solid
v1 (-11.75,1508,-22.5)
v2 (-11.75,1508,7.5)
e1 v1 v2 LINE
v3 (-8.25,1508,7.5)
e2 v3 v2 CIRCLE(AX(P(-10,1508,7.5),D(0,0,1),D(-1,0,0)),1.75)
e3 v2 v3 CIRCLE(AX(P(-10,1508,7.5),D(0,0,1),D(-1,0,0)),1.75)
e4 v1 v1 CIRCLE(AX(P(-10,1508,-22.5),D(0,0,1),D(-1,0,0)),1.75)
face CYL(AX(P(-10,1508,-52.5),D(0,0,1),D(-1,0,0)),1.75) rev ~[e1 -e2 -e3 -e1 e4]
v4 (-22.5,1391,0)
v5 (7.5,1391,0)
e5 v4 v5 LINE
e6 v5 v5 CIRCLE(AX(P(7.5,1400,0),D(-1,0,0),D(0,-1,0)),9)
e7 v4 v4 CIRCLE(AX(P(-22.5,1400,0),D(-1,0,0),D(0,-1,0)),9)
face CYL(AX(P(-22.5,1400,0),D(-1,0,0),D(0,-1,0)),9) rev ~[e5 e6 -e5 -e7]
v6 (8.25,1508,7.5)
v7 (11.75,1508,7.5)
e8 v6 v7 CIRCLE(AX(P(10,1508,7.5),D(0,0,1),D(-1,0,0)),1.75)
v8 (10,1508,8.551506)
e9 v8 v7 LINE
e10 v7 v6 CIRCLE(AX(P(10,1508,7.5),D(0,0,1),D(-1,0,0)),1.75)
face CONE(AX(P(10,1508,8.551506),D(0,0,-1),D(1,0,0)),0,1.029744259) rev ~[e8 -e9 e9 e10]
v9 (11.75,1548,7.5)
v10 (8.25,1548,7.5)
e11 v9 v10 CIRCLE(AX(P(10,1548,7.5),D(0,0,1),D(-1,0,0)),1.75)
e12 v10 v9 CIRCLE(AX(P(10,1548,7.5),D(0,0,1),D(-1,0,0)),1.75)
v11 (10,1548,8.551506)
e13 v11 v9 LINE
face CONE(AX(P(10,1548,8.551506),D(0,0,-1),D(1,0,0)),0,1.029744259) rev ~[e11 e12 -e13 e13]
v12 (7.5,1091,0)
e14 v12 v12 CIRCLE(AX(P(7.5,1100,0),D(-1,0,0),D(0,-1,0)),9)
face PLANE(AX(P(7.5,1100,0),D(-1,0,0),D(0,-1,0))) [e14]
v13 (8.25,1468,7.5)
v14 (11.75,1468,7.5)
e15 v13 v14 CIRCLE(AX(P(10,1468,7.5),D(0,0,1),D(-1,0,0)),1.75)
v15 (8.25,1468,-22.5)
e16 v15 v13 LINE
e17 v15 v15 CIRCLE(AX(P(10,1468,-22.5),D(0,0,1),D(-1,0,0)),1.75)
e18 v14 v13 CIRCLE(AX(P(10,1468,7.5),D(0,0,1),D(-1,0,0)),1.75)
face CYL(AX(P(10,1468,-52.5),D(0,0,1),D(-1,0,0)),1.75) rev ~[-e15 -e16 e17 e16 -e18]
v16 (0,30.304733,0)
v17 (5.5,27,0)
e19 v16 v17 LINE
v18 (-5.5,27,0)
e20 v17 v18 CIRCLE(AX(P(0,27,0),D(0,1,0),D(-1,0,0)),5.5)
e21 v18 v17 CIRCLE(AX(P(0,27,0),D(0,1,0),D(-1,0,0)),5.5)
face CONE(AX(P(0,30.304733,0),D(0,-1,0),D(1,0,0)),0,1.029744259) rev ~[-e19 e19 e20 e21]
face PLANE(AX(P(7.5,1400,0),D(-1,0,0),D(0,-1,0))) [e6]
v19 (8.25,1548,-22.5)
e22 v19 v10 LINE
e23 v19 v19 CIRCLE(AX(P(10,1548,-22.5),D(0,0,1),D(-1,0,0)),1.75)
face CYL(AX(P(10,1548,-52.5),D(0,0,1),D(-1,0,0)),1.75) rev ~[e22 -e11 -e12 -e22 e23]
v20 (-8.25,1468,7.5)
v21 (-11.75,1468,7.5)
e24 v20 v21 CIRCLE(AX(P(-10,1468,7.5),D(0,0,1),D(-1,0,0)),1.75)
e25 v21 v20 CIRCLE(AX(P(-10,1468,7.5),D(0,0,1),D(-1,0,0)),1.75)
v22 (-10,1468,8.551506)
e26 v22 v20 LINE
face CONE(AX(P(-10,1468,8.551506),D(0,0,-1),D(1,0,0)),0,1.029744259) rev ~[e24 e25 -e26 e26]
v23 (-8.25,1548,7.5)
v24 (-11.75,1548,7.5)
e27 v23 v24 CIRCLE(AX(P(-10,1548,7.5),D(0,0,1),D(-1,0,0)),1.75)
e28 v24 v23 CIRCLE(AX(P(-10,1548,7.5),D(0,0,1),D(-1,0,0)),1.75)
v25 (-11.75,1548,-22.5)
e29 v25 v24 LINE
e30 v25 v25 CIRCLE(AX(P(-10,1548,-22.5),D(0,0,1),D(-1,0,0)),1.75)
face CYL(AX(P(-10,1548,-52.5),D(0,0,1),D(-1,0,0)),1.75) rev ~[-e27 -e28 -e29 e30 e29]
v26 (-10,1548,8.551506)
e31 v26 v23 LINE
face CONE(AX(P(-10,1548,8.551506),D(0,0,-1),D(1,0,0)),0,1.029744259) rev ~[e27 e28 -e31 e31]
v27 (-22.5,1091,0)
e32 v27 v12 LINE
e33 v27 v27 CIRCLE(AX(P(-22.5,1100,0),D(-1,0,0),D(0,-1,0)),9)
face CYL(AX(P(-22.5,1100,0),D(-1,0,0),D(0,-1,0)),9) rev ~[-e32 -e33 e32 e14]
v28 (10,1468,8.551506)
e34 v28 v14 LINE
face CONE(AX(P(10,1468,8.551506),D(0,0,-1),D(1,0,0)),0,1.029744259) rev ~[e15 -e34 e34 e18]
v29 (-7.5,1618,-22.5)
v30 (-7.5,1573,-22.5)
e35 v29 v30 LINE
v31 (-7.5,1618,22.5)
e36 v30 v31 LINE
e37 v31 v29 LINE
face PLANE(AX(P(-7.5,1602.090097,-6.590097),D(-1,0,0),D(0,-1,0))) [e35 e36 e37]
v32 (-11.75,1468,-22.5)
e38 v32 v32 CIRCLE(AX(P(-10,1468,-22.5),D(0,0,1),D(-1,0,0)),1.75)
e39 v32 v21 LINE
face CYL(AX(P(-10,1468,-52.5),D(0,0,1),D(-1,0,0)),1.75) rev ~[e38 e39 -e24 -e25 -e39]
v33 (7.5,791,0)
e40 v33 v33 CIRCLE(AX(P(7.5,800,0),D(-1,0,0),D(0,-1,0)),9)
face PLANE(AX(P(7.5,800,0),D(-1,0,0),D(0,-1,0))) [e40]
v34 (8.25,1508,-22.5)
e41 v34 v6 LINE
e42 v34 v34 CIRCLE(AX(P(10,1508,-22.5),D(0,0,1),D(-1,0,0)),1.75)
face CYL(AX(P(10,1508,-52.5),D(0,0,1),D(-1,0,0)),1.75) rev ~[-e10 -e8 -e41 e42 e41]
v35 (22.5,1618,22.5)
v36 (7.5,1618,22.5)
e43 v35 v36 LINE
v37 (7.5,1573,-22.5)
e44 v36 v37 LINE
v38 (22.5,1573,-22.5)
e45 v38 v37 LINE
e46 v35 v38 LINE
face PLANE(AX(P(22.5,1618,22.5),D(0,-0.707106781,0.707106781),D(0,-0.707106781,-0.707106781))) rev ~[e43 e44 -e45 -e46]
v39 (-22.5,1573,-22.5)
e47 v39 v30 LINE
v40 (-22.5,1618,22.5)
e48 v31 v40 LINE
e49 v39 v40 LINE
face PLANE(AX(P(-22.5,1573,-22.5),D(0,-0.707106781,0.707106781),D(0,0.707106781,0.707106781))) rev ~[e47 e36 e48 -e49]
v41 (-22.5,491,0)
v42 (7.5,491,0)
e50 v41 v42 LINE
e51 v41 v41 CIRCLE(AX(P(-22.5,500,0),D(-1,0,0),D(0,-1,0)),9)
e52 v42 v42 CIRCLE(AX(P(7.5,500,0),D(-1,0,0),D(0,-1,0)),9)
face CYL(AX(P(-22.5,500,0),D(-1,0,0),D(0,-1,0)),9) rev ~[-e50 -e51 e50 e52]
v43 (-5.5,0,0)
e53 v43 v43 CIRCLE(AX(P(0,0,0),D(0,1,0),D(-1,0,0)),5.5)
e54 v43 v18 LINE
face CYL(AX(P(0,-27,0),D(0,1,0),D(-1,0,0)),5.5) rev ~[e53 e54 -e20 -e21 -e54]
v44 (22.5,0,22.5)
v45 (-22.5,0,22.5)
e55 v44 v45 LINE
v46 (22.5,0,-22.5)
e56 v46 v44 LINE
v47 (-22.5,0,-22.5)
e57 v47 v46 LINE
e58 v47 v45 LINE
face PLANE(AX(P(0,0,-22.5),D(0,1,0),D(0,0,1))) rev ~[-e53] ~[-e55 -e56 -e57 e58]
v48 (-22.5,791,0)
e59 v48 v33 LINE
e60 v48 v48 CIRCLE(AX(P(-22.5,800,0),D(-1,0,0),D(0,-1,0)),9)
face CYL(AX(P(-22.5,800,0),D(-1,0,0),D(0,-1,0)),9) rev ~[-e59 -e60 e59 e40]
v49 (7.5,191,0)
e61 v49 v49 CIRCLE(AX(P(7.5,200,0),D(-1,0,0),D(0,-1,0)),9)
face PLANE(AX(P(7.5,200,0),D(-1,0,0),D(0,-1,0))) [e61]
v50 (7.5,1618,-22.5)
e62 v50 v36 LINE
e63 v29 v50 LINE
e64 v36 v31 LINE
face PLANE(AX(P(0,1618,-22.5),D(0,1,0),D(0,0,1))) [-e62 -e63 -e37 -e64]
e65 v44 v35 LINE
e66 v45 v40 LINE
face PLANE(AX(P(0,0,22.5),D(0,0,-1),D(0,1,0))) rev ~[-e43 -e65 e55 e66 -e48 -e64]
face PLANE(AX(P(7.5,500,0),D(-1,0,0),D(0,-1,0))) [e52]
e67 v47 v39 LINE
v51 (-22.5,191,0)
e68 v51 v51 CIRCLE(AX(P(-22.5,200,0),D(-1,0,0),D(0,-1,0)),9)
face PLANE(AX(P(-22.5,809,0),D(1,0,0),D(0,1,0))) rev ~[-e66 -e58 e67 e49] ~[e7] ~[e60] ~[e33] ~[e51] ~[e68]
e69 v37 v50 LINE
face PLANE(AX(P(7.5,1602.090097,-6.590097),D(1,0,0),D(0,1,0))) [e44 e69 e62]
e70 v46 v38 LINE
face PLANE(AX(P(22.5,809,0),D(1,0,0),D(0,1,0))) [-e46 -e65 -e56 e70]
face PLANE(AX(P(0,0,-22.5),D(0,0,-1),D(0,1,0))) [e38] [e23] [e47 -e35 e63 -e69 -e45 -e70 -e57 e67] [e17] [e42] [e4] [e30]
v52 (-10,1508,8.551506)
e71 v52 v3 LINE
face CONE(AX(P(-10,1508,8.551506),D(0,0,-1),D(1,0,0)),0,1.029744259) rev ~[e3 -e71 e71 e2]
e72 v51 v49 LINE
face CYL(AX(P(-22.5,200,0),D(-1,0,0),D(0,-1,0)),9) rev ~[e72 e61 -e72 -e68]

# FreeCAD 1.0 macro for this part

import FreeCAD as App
import Part
import Sketcher
from FreeCAD import Vector
Q = App.Units.Quantity


def add_polygon(sketch, points):
    """Adds a closed chain of lines whose ends are joined by coincident constraints."""
    first, n = sketch.GeometryCount, len(points)
    for a, b in zip(points, points[1:] + points[:1]):
        sketch.addGeometry(Part.LineSegment(App.Vector(*a, 0), App.Vector(*b, 0)), False)
    for i in range(n):
        sketch.addConstraint(Sketcher.Constraint("Coincident", first + i, 2, first + (i + 1) % n, 1))

doc = App.newDocument("Part")
body = doc.addObject("PartDesign::Body", "Body")

sketch1 = body.newObject("Sketcher::SketchObject", "Sketch")
sketch1.AttachmentSupport = (doc.getObject("YZ_Plane"), [""])
sketch1.MapMode = "FlatFace"
add_polygon(sketch1, [(0, 22), (0, -22), (1618, -22), (1618, 22)])
sketch1.addConstraint(Sketcher.Constraint("Vertical", 0))
sketch1.addConstraint(Sketcher.Constraint("Horizontal", 1))
sketch1.addConstraint(Sketcher.Constraint("Vertical", 2))
sketch1.addConstraint(Sketcher.Constraint("Horizontal", 3))
sketch1.addConstraint(Sketcher.Constraint("Symmetric", 0, 2, 3, 2, -1, 1))
sketch1.addConstraint(Sketcher.Constraint("DistanceX", 1, 1, 1, 2, Q("1618 mm")))
sketch1.addConstraint(Sketcher.Constraint("DistanceY", 0, 2, 0, 1, Q("45 mm")))
pad1 = body.newObject("PartDesign::Pad", "Pad")
pad1.Profile = sketch1
pad1.Length = 45
pad1.Midplane = True

sketch2 = body.newObject("Sketcher::SketchObject", "Sketch001")
sketch2.AttachmentSupport = (doc.getObject("XZ_Plane"), [""])
sketch2.MapMode = "FlatFace"
sketch2.addGeometry(Part.Circle(Vector(0, 0, 0), Vector(0, 0, 1), 6), False)
sketch2.addConstraint(Sketcher.Constraint("Coincident", 0, 3, -1, 1))
sketch2.addConstraint(Sketcher.Constraint("Diameter", 0, Q("11 mm")))
doc.recompute()
hole = body.newObject("PartDesign::Hole", "Hole")
hole.Profile = sketch2
hole.ThreadType = "None"
hole.Diameter = 11
hole.DepthType = "Dimension"
hole.Depth = 27
hole.DrillPoint = "Angled"
hole.DrillPointAngle = 118

sketch3 = body.newObject("Sketcher::SketchObject", "Sketch002")
sketch3.AttachmentSupport = (doc.getObject("YZ_Plane"), [""])
sketch3.MapMode = "FlatFace"
sketch3.AttachmentOffset = App.Placement(Vector(0, 0, 22.5), App.Rotation())
add_polygon(sketch3, [(1618, -22), (1618, 22), (1573, -22)])
sketch3.addConstraint(Sketcher.Constraint("Vertical", 0))
sketch3.addConstraint(Sketcher.Constraint("Horizontal", 2))
sketch3.addConstraint(Sketcher.Constraint("Equal", 2, 0))
sketch3.addConstraint(Sketcher.Constraint("DistanceX", 2, 1, 2, 2, Q("45 mm")))
sketch3.addConstraint(Sketcher.Constraint("DistanceX", -1, 1, 0, 2, Q("1618 mm")))
sketch3.addConstraint(Sketcher.Constraint("DistanceY", -1, 1, 0, 2, Q("22.5 mm")))
pocket1 = body.newObject("PartDesign::Pocket", "Pocket")
pocket1.Profile = sketch3
pocket1.Length = 15

sketch4 = body.newObject("Sketcher::SketchObject", "Sketch003")
sketch4.AttachmentSupport = (doc.getObject("YZ_Plane"), [""])
sketch4.MapMode = "FlatFace"
sketch4.AttachmentOffset = App.Placement(Vector(0, 0, -22.5), App.Rotation())
add_polygon(sketch4, [(1573, -22), (1618, 22), (1618, -22)])
sketch4.addConstraint(Sketcher.Constraint("Vertical", 1))
sketch4.addConstraint(Sketcher.Constraint("Horizontal", 2))
sketch4.addConstraint(Sketcher.Constraint("Equal", 2, 1))
sketch4.addConstraint(Sketcher.Constraint("DistanceX", 2, 2, 2, 1, Q("45 mm")))
sketch4.addConstraint(Sketcher.Constraint("DistanceX", -1, 1, 0, 2, Q("1618 mm")))
sketch4.addConstraint(Sketcher.Constraint("DistanceY", -1, 1, 0, 2, Q("22.5 mm")))
pocket2 = body.newObject("PartDesign::Pocket", "Pocket001")
pocket2.Profile = sketch4
pocket2.Length = 15
pocket2.Reversed = True

sketch5 = body.newObject("Sketcher::SketchObject", "Sketch004")
sketch5.AttachmentSupport = (doc.getObject("YZ_Plane"), [""])
sketch5.MapMode = "FlatFace"
sketch5.AttachmentOffset = App.Placement(Vector(0, 0, -22.5), App.Rotation())
sketch5.addGeometry(Part.Circle(Vector(200, 0, 0), Vector(0, 0, 1), 9), False)
sketch5.addGeometry(Part.Circle(Vector(500, 0, 0), Vector(0, 0, 1), 9), False)
sketch5.addGeometry(Part.Circle(Vector(800, 0, 0), Vector(0, 0, 1), 9), False)
sketch5.addGeometry(Part.Circle(Vector(1100, 0, 0), Vector(0, 0, 1), 9), False)
sketch5.addGeometry(Part.Circle(Vector(1400, 0, 0), Vector(0, 0, 1), 9), False)
sketch5.addConstraint(Sketcher.Constraint("Equal", 0, 1))
sketch5.addConstraint(Sketcher.Constraint("Equal", 1, 2))
sketch5.addConstraint(Sketcher.Constraint("Equal", 2, 3))
sketch5.addConstraint(Sketcher.Constraint("Equal", 3, 4))
sketch5.addConstraint(Sketcher.Constraint("PointOnObject", 0, 3, -1))
sketch5.addConstraint(Sketcher.Constraint("PointOnObject", 1, 3, -1))
sketch5.addConstraint(Sketcher.Constraint("PointOnObject", 2, 3, -1))
sketch5.addConstraint(Sketcher.Constraint("PointOnObject", 3, 3, -1))
sketch5.addConstraint(Sketcher.Constraint("PointOnObject", 4, 3, -1))
sketch5.addConstraint(Sketcher.Constraint("Diameter", 0, Q("18 mm")))
sketch5.addConstraint(Sketcher.Constraint("DistanceX", -1, 1, 0, 3, Q("200 mm")))
sketch5.addConstraint(Sketcher.Constraint("DistanceX", -1, 1, 1, 3, Q("500 mm")))
sketch5.addConstraint(Sketcher.Constraint("DistanceX", -1, 1, 2, 3, Q("800 mm")))
sketch5.addConstraint(Sketcher.Constraint("DistanceX", -1, 1, 3, 3, Q("1100 mm")))
sketch5.addConstraint(Sketcher.Constraint("DistanceX", -1, 1, 4, 3, Q("1400 mm")))
pocket3 = body.newObject("PartDesign::Pocket", "Pocket002")
pocket3.Profile = sketch5
pocket3.Length = 30
pocket3.Reversed = True

sketch6 = body.newObject("Sketcher::SketchObject", "Sketch005")
sketch6.AttachmentSupport = (doc.getObject("XY_Plane"), [""])
sketch6.MapMode = "FlatFace"
sketch6.AttachmentOffset = App.Placement(Vector(0, 0, -22.5), App.Rotation())
sketch6.addGeometry(Part.Circle(Vector(10, 1548, 0), Vector(0, 0, 1), 1.8), False)
sketch6.addGeometry(Part.Circle(Vector(10, 1508, 0), Vector(0, 0, 1), 1.8), False)
sketch6.addGeometry(Part.Circle(Vector(10, 1468, 0), Vector(0, 0, 1), 1.8), False)
sketch6.addGeometry(Part.Circle(Vector(-10, 1468, 0), Vector(0, 0, 1), 1.8), False)
sketch6.addGeometry(Part.Circle(Vector(-10, 1508, 0), Vector(0, 0, 1), 1.8), False)
sketch6.addGeometry(Part.Circle(Vector(-10, 1548, 0), Vector(0, 0, 1), 1.8), False)
sketch6.addConstraint(Sketcher.Constraint("Equal", 0, 1))
sketch6.addConstraint(Sketcher.Constraint("Equal", 1, 2))
sketch6.addConstraint(Sketcher.Constraint("Equal", 2, 3))
sketch6.addConstraint(Sketcher.Constraint("Equal", 3, 4))
sketch6.addConstraint(Sketcher.Constraint("Equal", 4, 5))
sketch6.addConstraint(Sketcher.Constraint("Symmetric", 2, 3, 3, 3, -2))
sketch6.addConstraint(Sketcher.Constraint("Symmetric", 1, 3, 4, 3, -2))
sketch6.addConstraint(Sketcher.Constraint("Symmetric", 0, 3, 5, 3, -2))
sketch6.addConstraint(Sketcher.Constraint("Vertical", 0, 3, 1, 3))
sketch6.addConstraint(Sketcher.Constraint("Vertical", 1, 3, 2, 3))
sketch6.addConstraint(Sketcher.Constraint("Diameter", 0, Q("3.5 mm")))
sketch6.addConstraint(Sketcher.Constraint("DistanceX", -1, 1, 0, 3, Q("10 mm")))
sketch6.addConstraint(Sketcher.Constraint("DistanceY", -1, 1, 0, 3, Q("1548 mm")))
sketch6.addConstraint(Sketcher.Constraint("DistanceY", -1, 1, 1, 3, Q("1508 mm")))
sketch6.addConstraint(Sketcher.Constraint("DistanceY", -1, 1, 2, 3, Q("1468 mm")))
doc.recompute()
hole2 = body.newObject("PartDesign::Hole", "Hole001")
hole2.Profile = sketch6
hole2.ThreadType = "None"
hole2.Diameter = 3.5
hole2.DepthType = "Dimension"
hole2.Depth = 30
hole2.DrillPoint = "Angled"
hole2.DrillPointAngle = 118
hole2.Reversed = True

doc.recompute()
